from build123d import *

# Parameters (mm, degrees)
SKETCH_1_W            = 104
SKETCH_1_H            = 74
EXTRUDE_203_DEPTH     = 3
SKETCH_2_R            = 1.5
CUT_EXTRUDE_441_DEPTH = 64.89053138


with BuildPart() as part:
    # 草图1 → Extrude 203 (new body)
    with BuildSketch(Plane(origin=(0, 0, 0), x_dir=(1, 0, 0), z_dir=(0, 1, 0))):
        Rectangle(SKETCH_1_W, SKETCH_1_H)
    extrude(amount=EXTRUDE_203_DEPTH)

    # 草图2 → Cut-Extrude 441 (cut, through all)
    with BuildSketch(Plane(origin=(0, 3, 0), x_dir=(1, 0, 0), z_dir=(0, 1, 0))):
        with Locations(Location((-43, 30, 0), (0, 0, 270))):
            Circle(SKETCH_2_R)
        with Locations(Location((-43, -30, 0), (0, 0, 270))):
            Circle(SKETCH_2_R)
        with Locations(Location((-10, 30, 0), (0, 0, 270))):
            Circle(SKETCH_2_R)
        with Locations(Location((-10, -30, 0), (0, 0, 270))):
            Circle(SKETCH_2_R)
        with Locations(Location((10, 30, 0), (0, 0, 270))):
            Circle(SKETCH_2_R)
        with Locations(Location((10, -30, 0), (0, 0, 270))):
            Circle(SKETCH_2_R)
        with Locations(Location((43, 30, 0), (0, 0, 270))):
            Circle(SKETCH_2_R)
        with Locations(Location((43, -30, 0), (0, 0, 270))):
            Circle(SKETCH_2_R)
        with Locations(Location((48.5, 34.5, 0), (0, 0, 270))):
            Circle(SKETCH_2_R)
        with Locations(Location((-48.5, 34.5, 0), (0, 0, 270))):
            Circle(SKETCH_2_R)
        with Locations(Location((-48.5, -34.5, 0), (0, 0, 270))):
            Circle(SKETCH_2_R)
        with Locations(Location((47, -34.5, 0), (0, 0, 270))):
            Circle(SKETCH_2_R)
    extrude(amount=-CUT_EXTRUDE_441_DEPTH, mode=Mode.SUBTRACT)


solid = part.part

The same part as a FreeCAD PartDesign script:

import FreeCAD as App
import Part
import Sketcher

doc = App.newDocument("Part")
body = doc.addObject("PartDesign::Body", "Body")

sketch1 = doc.addObject("Sketcher::SketchObject", "Sketch")
body.addObject(sketch1)
sketch1.AttachmentSupport = (doc.XZ_Plane, [""])
sketch1.MapMode = "FlatFace"
sketch1.addGeometry(Part.LineSegment(App.Vector(-52, -37, 0), App.Vector(-52, 37, 0)), False)
sketch1.addGeometry(Part.LineSegment(App.Vector(-52, 37, 0), App.Vector(52, 37, 0)), False)
sketch1.addGeometry(Part.LineSegment(App.Vector(52, 37, 0), App.Vector(52, -37, 0)), False)
sketch1.addGeometry(Part.LineSegment(App.Vector(52, -37, 0), App.Vector(-52, -37, 0)), False)
sketch1.addConstraint(Sketcher.Constraint("Coincident", 0, 2, 1, 1))
sketch1.addConstraint(Sketcher.Constraint("Coincident", 1, 2, 2, 1))
sketch1.addConstraint(Sketcher.Constraint("Coincident", 2, 2, 3, 1))
sketch1.addConstraint(Sketcher.Constraint("Coincident", 3, 2, 0, 1))
sketch1.addConstraint(Sketcher.Constraint("Vertical", 0))
sketch1.addConstraint(Sketcher.Constraint("Horizontal", 1))
sketch1.addConstraint(Sketcher.Constraint("Vertical", 2))
sketch1.addConstraint(Sketcher.Constraint("Horizontal", 3))
sketch1.addConstraint(Sketcher.Constraint("Symmetric", 0, 2, 2, 2, -1, 1))
sketch1.addConstraint(Sketcher.Constraint("DistanceX", 1, 1, 1, 2, 104.0))
sketch1.addConstraint(Sketcher.Constraint("DistanceY", 0, 1, 0, 2, 74.0))
pad1 = doc.addObject("PartDesign::Pad", "Pad")
body.addObject(pad1)
pad1.Profile = sketch1
pad1.Length = 3
pad1.Reversed = True

sketch2 = doc.addObject("Sketcher::SketchObject", "Sketch001")
body.addObject(sketch2)
sketch2.AttachmentSupport = (doc.XZ_Plane, [""])
sketch2.MapMode = "FlatFace"
sketch2.AttachmentOffset = App.Placement(App.Vector(0, 0, -3), App.Rotation())
sketch2.addGeometry(Part.Circle(App.Vector(-43, -30, 0), App.Vector(0, 0, 1), 1.5), False)
sketch2.addGeometry(Part.Circle(App.Vector(-43, 30, 0), App.Vector(0, 0, 1), 1.5), False)
sketch2.addGeometry(Part.Circle(App.Vector(-10, -30, 0), App.Vector(0, 0, 1), 1.5), False)
sketch2.addGeometry(Part.Circle(App.Vector(-10, 30, 0), App.Vector(0, 0, 1), 1.5), False)
sketch2.addGeometry(Part.Circle(App.Vector(10, -30, 0), App.Vector(0, 0, 1), 1.5), False)
sketch2.addGeometry(Part.Circle(App.Vector(10, 30, 0), App.Vector(0, 0, 1), 1.5), False)
sketch2.addGeometry(Part.Circle(App.Vector(43, -30, 0), App.Vector(0, 0, 1), 1.5), False)
sketch2.addGeometry(Part.Circle(App.Vector(43, 30, 0), App.Vector(0, 0, 1), 1.5), False)
sketch2.addGeometry(Part.Circle(App.Vector(48.5, -34.5, 0), App.Vector(0, 0, 1), 1.5), False)
sketch2.addGeometry(Part.Circle(App.Vector(-48.5, -34.5, 0), App.Vector(0, 0, 1), 1.5), False)
sketch2.addGeometry(Part.Circle(App.Vector(-48.5, 34.5, 0), App.Vector(0, 0, 1), 1.5), False)
sketch2.addGeometry(Part.Circle(App.Vector(47, 34.5, 0), App.Vector(0, 0, 1), 1.5), False)
sketch2.addConstraint(Sketcher.Constraint("Equal", 0, 1))
sketch2.addConstraint(Sketcher.Constraint("Equal", 1, 2))
sketch2.addConstraint(Sketcher.Constraint("Equal", 2, 3))
sketch2.addConstraint(Sketcher.Constraint("Equal", 3, 4))
sketch2.addConstraint(Sketcher.Constraint("Equal", 4, 5))
sketch2.addConstraint(Sketcher.Constraint("Equal", 5, 6))
sketch2.addConstraint(Sketcher.Constraint("Equal", 6, 7))
sketch2.addConstraint(Sketcher.Constraint("Equal", 7, 8))
sketch2.addConstraint(Sketcher.Constraint("Equal", 8, 9))
sketch2.addConstraint(Sketcher.Constraint("Equal", 9, 10))
sketch2.addConstraint(Sketcher.Constraint("Equal", 10, 11))
sketch2.addConstraint(Sketcher.Constraint("Symmetric", 3, 3, 4, 3, -1, 1))
sketch2.addConstraint(Sketcher.Constraint("Symmetric", 2, 3, 5, 3, -1, 1))
sketch2.addConstraint(Sketcher.Constraint("Symmetric", 1, 3, 6, 3, -1, 1))
sketch2.addConstraint(Sketcher.Constraint("Symmetric", 0, 3, 7, 3, -1, 1))
sketch2.addConstraint(Sketcher.Constraint("Symmetric", 8, 3, 10, 3, -1, 1))
sketch2.addConstraint(Sketcher.Constraint("Symmetric", 2, 3, 4, 3, -2))
sketch2.addConstraint(Sketcher.Constraint("Symmetric", 0, 3, 6, 3, -2))
sketch2.addConstraint(Sketcher.Constraint("Symmetric", 8, 3, 9, 3, -2))
sketch2.addConstraint(Sketcher.Constraint("Horizontal", 0, 3, 2, 3))
sketch2.addConstraint(Sketcher.Constraint("Horizontal", 10, 3, 11, 3))
sketch2.addConstraint(Sketcher.Constraint("Diameter", 0, 3.0))
sketch2.addConstraint(Sketcher.Constraint("DistanceX", 0, 3, -1, 1, 43.0))
sketch2.addConstraint(Sketcher.Constraint("DistanceY", 0, 3, -1, 1, 30.0))
sketch2.addConstraint(Sketcher.Constraint("DistanceX", 2, 3, -1, 1, 10.0))
sketch2.addConstraint(Sketcher.Constraint("DistanceX", -1, 1, 11, 3, 47.0))
sketch2.addConstraint(Sketcher.Constraint("DistanceY", 9, 3, 10, 3, 69.0))
sketch2.addConstraint(Sketcher.Constraint("DistanceX", -1, 1, 8, 3, 48.5))
pocket1 = doc.addObject("PartDesign::Pocket", "Pocket")
body.addObject(pocket1)
pocket1.Profile = sketch2
pocket1.Type = "ThroughAll"
pocket1.Reversed = True

doc.recompute()
